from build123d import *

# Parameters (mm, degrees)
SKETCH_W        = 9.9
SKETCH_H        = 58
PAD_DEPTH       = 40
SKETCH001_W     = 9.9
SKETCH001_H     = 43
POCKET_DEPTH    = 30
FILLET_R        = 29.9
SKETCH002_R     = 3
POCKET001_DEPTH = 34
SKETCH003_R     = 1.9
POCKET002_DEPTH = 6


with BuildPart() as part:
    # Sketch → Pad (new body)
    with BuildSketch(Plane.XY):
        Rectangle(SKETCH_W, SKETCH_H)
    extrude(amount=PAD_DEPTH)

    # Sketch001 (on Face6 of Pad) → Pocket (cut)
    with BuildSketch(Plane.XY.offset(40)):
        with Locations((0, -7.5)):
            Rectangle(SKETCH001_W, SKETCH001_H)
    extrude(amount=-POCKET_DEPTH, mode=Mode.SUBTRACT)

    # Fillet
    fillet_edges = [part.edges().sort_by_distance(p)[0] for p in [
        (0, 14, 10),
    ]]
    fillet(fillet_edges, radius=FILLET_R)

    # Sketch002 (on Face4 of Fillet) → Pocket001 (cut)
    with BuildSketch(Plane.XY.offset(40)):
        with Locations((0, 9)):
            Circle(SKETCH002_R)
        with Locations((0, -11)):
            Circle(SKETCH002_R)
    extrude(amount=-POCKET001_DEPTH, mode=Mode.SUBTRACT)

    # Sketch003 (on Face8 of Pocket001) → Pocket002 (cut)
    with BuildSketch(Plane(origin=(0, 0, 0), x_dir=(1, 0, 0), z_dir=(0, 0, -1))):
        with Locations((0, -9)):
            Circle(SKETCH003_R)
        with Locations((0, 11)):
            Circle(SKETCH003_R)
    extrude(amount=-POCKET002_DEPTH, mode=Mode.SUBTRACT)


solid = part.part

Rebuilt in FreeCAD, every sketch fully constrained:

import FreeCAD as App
import Part
import Sketcher
from FreeCAD import Vector
Q = App.Units.Quantity


def edges_at(feature, points):
    """Names of the edges that pass closest to the given points."""
    edges = feature.Shape.Edges
    near = lambda p: min(range(len(edges)), key=lambda i: edges[i].distToShape(Part.Vertex(*p))[0])
    return sorted({f"Edge{near(p) + 1}" for p in points})

doc = App.newDocument("Part")
body = doc.addObject("PartDesign::Body", "Body")

# Sketch on XY plane
sketch1 = doc.addObject("Sketcher::SketchObject", "Sketch")
body.addObject(sketch1)
sketch1.AttachmentSupport = (doc.XY_Plane, [""])
sketch1.MapMode = "FlatFace"
sketch1.addGeometry([
    Part.LineSegment(Vector(-5, 29, 0), Vector(-5, -29, 0)),
    Part.LineSegment(Vector(-5, -29, 0), Vector(5, -29, 0)),
    Part.LineSegment(Vector(5, -29, 0), Vector(5, 29, 0)),
    Part.LineSegment(Vector(5, 29, 0), Vector(-5, 29, 0)),
], False)
sketch1.addConstraint([
    Sketcher.Constraint("Coincident", 0, 2, 1, 1),
    Sketcher.Constraint("Coincident", 1, 2, 2, 1),
    Sketcher.Constraint("Coincident", 2, 2, 3, 1),
    Sketcher.Constraint("Coincident", 3, 2, 0, 1),
    Sketcher.Constraint("Vertical", 0),
    Sketcher.Constraint("Horizontal", 1),
    Sketcher.Constraint("Vertical", 2),
    Sketcher.Constraint("Horizontal", 3),
    Sketcher.Constraint("Symmetric", 0, 2, 2, 2, -1, 1),
    Sketcher.Constraint("DistanceY", 0, 2, 0, 1, Q("58 mm")),
    Sketcher.Constraint("DistanceX", 1, 1, 1, 2, Q("9.9 mm")),
])
pad1 = doc.addObject("PartDesign::Pad", "Pad")
body.addObject(pad1)
pad1.Profile = sketch1
pad1.Length = 40

# Sketch on XY plane
sketch2 = doc.addObject("Sketcher::SketchObject", "Sketch001")
body.addObject(sketch2)
sketch2.AttachmentSupport = (doc.XY_Plane, [""])
sketch2.MapMode = "FlatFace"
sketch2.AttachmentOffset = App.Placement(Vector(0, 0, 40), App.Rotation())
sketch2.addGeometry([
    Part.LineSegment(Vector(-5, 14, 0), Vector(-5, -29, 0)),
    Part.LineSegment(Vector(-5, -29, 0), Vector(5, -29, 0)),
    Part.LineSegment(Vector(5, -29, 0), Vector(5, 14, 0)),
    Part.LineSegment(Vector(5, 14, 0), Vector(-5, 14, 0)),
], False)
sketch2.addConstraint([
    Sketcher.Constraint("Coincident", 0, 2, 1, 1),
    Sketcher.Constraint("Coincident", 1, 2, 2, 1),
    Sketcher.Constraint("Coincident", 2, 2, 3, 1),
    Sketcher.Constraint("Coincident", 3, 2, 0, 1),
    Sketcher.Constraint("Vertical", 0),
    Sketcher.Constraint("Horizontal", 1),
    Sketcher.Constraint("Vertical", 2),
    Sketcher.Constraint("Horizontal", 3),
    Sketcher.Constraint("DistanceY", 0, 2, 0, 1, Q("43 mm")),
    Sketcher.Constraint("DistanceX", 1, 1, 1, 2, Q("9.9 mm")),
    Sketcher.Constraint("DistanceY", 0, 2, -1, 1, Q("29 mm")),
    Sketcher.Constraint("DistanceX", 0, 2, -1, 1, Q("4.95 mm")),
])
pocket1 = doc.addObject("PartDesign::Pocket", "Pocket")
body.addObject(pocket1)
pocket1.Profile = sketch2
pocket1.Length = 30
doc.recompute()

fillet = doc.addObject("PartDesign::Fillet", "Fillet")
body.addObject(fillet)
fillet.Base = (pocket1, edges_at(pocket1, [(0, 14, 10)]))
fillet.Radius = 29.9

# Sketch on XY plane
sketch3 = doc.addObject("Sketcher::SketchObject", "Sketch002")
body.addObject(sketch3)
sketch3.AttachmentSupport = (doc.XY_Plane, [""])
sketch3.MapMode = "FlatFace"
sketch3.AttachmentOffset = App.Placement(Vector(0, 0, 40), App.Rotation())
sketch3.addGeometry([
    Part.Circle(Vector(0, 9, 0), Vector(0, 0, 1), 3),
    Part.Circle(Vector(0, -11, 0), Vector(0, 0, 1), 3),
], False)
sketch3.addConstraint([
    Sketcher.Constraint("Equal", 0, 1),
    Sketcher.Constraint("PointOnObject", 0, 3, -2),
    Sketcher.Constraint("PointOnObject", 1, 3, -2),
    Sketcher.Constraint("Diameter", 0, Q("6 mm")),
    Sketcher.Constraint("DistanceY", -1, 1, 0, 3, Q("9 mm")),
    Sketcher.Constraint("DistanceY", 1, 3, -1, 1, Q("11 mm")),
])
pocket2 = doc.addObject("PartDesign::Pocket", "Pocket001")
body.addObject(pocket2)
pocket2.Profile = sketch3
pocket2.Length = 34

# Sketch on XY plane
sketch4 = doc.addObject("Sketcher::SketchObject", "Sketch003")
body.addObject(sketch4)
sketch4.AttachmentSupport = (doc.XY_Plane, [""])
sketch4.MapMode = "FlatFace"
sketch4.addGeometry([
    Part.Circle(Vector(0, 9, 0), Vector(0, 0, 1), 1.9),
    Part.Circle(Vector(0, -11, 0), Vector(0, 0, 1), 1.9),
], False)
sketch4.addConstraint([
    Sketcher.Constraint("Equal", 0, 1),
    Sketcher.Constraint("PointOnObject", 0, 3, -2),
    Sketcher.Constraint("PointOnObject", 1, 3, -2),
    Sketcher.Constraint("Diameter", 0, Q("3.8 mm")),
    Sketcher.Constraint("DistanceY", -1, 1, 0, 3, Q("9 mm")),
    Sketcher.Constraint("DistanceY", 1, 3, -1, 1, Q("11 mm")),
])
pocket3 = doc.addObject("PartDesign::Pocket", "Pocket002")
body.addObject(pocket3)
pocket3.Profile = sketch4
pocket3.Length = 6
pocket3.Reversed = True

doc.recompute()
